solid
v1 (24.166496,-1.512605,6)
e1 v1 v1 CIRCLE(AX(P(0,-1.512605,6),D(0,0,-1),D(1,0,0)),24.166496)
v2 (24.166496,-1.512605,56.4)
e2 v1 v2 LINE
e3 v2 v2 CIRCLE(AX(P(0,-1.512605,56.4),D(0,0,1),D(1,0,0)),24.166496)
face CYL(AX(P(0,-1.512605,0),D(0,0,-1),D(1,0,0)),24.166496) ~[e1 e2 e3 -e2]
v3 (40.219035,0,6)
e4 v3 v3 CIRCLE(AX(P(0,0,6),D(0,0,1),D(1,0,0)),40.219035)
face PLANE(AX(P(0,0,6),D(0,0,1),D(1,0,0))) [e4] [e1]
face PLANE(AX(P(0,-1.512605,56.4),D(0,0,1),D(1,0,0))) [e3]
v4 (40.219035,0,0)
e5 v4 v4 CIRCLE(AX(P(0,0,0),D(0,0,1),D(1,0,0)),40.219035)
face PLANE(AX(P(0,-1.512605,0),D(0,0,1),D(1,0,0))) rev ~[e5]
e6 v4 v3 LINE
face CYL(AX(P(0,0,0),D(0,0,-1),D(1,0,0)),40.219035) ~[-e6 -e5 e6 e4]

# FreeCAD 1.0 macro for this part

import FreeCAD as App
import Part
import Sketcher

doc = App.newDocument("Part")
body = doc.addObject("PartDesign::Body", "Body")

# Sketch on XY plane
sketch1 = body.newObject("Sketcher::SketchObject", "Sketch")
sketch1.AttachmentSupport = (doc.getObject("XY_Plane"), [""])
sketch1.MapMode = "FlatFace"
sketch1.addGeometry(Part.Circle(App.Vector(0, 0, 0), App.Vector(0, 0, 1), 40.219035), False)
sketch1.addConstraint([
    Sketcher.Constraint("Coincident", 0, 3, -1, 1),
    Sketcher.Constraint("Diameter", 0, 80.43807),
])
pad1 = body.newObject("PartDesign::Pad", "Pad")
pad1.Profile = sketch1
pad1.Length = 6

# Sketch on XY plane
sketch2 = body.newObject("Sketcher::SketchObject", "Sketch001")
sketch2.AttachmentSupport = (doc.getObject("XY_Plane"), [""])
sketch2.MapMode = "FlatFace"
sketch2.addGeometry(Part.Circle(App.Vector(0, -1.512605, 0), App.Vector(0, 0, 1), 24.166496), False)
sketch2.addConstraint([
    Sketcher.Constraint("PointOnObject", 0, 3, -2),
    Sketcher.Constraint("Diameter", 0, 48.332992),
    Sketcher.Constraint("DistanceY", 0, 3, -1, 1, 1.512605),
])
pad2 = body.newObject("PartDesign::Pad", "Pad001")
pad2.Profile = sketch2
pad2.Length = 56.4

doc.recompute()
